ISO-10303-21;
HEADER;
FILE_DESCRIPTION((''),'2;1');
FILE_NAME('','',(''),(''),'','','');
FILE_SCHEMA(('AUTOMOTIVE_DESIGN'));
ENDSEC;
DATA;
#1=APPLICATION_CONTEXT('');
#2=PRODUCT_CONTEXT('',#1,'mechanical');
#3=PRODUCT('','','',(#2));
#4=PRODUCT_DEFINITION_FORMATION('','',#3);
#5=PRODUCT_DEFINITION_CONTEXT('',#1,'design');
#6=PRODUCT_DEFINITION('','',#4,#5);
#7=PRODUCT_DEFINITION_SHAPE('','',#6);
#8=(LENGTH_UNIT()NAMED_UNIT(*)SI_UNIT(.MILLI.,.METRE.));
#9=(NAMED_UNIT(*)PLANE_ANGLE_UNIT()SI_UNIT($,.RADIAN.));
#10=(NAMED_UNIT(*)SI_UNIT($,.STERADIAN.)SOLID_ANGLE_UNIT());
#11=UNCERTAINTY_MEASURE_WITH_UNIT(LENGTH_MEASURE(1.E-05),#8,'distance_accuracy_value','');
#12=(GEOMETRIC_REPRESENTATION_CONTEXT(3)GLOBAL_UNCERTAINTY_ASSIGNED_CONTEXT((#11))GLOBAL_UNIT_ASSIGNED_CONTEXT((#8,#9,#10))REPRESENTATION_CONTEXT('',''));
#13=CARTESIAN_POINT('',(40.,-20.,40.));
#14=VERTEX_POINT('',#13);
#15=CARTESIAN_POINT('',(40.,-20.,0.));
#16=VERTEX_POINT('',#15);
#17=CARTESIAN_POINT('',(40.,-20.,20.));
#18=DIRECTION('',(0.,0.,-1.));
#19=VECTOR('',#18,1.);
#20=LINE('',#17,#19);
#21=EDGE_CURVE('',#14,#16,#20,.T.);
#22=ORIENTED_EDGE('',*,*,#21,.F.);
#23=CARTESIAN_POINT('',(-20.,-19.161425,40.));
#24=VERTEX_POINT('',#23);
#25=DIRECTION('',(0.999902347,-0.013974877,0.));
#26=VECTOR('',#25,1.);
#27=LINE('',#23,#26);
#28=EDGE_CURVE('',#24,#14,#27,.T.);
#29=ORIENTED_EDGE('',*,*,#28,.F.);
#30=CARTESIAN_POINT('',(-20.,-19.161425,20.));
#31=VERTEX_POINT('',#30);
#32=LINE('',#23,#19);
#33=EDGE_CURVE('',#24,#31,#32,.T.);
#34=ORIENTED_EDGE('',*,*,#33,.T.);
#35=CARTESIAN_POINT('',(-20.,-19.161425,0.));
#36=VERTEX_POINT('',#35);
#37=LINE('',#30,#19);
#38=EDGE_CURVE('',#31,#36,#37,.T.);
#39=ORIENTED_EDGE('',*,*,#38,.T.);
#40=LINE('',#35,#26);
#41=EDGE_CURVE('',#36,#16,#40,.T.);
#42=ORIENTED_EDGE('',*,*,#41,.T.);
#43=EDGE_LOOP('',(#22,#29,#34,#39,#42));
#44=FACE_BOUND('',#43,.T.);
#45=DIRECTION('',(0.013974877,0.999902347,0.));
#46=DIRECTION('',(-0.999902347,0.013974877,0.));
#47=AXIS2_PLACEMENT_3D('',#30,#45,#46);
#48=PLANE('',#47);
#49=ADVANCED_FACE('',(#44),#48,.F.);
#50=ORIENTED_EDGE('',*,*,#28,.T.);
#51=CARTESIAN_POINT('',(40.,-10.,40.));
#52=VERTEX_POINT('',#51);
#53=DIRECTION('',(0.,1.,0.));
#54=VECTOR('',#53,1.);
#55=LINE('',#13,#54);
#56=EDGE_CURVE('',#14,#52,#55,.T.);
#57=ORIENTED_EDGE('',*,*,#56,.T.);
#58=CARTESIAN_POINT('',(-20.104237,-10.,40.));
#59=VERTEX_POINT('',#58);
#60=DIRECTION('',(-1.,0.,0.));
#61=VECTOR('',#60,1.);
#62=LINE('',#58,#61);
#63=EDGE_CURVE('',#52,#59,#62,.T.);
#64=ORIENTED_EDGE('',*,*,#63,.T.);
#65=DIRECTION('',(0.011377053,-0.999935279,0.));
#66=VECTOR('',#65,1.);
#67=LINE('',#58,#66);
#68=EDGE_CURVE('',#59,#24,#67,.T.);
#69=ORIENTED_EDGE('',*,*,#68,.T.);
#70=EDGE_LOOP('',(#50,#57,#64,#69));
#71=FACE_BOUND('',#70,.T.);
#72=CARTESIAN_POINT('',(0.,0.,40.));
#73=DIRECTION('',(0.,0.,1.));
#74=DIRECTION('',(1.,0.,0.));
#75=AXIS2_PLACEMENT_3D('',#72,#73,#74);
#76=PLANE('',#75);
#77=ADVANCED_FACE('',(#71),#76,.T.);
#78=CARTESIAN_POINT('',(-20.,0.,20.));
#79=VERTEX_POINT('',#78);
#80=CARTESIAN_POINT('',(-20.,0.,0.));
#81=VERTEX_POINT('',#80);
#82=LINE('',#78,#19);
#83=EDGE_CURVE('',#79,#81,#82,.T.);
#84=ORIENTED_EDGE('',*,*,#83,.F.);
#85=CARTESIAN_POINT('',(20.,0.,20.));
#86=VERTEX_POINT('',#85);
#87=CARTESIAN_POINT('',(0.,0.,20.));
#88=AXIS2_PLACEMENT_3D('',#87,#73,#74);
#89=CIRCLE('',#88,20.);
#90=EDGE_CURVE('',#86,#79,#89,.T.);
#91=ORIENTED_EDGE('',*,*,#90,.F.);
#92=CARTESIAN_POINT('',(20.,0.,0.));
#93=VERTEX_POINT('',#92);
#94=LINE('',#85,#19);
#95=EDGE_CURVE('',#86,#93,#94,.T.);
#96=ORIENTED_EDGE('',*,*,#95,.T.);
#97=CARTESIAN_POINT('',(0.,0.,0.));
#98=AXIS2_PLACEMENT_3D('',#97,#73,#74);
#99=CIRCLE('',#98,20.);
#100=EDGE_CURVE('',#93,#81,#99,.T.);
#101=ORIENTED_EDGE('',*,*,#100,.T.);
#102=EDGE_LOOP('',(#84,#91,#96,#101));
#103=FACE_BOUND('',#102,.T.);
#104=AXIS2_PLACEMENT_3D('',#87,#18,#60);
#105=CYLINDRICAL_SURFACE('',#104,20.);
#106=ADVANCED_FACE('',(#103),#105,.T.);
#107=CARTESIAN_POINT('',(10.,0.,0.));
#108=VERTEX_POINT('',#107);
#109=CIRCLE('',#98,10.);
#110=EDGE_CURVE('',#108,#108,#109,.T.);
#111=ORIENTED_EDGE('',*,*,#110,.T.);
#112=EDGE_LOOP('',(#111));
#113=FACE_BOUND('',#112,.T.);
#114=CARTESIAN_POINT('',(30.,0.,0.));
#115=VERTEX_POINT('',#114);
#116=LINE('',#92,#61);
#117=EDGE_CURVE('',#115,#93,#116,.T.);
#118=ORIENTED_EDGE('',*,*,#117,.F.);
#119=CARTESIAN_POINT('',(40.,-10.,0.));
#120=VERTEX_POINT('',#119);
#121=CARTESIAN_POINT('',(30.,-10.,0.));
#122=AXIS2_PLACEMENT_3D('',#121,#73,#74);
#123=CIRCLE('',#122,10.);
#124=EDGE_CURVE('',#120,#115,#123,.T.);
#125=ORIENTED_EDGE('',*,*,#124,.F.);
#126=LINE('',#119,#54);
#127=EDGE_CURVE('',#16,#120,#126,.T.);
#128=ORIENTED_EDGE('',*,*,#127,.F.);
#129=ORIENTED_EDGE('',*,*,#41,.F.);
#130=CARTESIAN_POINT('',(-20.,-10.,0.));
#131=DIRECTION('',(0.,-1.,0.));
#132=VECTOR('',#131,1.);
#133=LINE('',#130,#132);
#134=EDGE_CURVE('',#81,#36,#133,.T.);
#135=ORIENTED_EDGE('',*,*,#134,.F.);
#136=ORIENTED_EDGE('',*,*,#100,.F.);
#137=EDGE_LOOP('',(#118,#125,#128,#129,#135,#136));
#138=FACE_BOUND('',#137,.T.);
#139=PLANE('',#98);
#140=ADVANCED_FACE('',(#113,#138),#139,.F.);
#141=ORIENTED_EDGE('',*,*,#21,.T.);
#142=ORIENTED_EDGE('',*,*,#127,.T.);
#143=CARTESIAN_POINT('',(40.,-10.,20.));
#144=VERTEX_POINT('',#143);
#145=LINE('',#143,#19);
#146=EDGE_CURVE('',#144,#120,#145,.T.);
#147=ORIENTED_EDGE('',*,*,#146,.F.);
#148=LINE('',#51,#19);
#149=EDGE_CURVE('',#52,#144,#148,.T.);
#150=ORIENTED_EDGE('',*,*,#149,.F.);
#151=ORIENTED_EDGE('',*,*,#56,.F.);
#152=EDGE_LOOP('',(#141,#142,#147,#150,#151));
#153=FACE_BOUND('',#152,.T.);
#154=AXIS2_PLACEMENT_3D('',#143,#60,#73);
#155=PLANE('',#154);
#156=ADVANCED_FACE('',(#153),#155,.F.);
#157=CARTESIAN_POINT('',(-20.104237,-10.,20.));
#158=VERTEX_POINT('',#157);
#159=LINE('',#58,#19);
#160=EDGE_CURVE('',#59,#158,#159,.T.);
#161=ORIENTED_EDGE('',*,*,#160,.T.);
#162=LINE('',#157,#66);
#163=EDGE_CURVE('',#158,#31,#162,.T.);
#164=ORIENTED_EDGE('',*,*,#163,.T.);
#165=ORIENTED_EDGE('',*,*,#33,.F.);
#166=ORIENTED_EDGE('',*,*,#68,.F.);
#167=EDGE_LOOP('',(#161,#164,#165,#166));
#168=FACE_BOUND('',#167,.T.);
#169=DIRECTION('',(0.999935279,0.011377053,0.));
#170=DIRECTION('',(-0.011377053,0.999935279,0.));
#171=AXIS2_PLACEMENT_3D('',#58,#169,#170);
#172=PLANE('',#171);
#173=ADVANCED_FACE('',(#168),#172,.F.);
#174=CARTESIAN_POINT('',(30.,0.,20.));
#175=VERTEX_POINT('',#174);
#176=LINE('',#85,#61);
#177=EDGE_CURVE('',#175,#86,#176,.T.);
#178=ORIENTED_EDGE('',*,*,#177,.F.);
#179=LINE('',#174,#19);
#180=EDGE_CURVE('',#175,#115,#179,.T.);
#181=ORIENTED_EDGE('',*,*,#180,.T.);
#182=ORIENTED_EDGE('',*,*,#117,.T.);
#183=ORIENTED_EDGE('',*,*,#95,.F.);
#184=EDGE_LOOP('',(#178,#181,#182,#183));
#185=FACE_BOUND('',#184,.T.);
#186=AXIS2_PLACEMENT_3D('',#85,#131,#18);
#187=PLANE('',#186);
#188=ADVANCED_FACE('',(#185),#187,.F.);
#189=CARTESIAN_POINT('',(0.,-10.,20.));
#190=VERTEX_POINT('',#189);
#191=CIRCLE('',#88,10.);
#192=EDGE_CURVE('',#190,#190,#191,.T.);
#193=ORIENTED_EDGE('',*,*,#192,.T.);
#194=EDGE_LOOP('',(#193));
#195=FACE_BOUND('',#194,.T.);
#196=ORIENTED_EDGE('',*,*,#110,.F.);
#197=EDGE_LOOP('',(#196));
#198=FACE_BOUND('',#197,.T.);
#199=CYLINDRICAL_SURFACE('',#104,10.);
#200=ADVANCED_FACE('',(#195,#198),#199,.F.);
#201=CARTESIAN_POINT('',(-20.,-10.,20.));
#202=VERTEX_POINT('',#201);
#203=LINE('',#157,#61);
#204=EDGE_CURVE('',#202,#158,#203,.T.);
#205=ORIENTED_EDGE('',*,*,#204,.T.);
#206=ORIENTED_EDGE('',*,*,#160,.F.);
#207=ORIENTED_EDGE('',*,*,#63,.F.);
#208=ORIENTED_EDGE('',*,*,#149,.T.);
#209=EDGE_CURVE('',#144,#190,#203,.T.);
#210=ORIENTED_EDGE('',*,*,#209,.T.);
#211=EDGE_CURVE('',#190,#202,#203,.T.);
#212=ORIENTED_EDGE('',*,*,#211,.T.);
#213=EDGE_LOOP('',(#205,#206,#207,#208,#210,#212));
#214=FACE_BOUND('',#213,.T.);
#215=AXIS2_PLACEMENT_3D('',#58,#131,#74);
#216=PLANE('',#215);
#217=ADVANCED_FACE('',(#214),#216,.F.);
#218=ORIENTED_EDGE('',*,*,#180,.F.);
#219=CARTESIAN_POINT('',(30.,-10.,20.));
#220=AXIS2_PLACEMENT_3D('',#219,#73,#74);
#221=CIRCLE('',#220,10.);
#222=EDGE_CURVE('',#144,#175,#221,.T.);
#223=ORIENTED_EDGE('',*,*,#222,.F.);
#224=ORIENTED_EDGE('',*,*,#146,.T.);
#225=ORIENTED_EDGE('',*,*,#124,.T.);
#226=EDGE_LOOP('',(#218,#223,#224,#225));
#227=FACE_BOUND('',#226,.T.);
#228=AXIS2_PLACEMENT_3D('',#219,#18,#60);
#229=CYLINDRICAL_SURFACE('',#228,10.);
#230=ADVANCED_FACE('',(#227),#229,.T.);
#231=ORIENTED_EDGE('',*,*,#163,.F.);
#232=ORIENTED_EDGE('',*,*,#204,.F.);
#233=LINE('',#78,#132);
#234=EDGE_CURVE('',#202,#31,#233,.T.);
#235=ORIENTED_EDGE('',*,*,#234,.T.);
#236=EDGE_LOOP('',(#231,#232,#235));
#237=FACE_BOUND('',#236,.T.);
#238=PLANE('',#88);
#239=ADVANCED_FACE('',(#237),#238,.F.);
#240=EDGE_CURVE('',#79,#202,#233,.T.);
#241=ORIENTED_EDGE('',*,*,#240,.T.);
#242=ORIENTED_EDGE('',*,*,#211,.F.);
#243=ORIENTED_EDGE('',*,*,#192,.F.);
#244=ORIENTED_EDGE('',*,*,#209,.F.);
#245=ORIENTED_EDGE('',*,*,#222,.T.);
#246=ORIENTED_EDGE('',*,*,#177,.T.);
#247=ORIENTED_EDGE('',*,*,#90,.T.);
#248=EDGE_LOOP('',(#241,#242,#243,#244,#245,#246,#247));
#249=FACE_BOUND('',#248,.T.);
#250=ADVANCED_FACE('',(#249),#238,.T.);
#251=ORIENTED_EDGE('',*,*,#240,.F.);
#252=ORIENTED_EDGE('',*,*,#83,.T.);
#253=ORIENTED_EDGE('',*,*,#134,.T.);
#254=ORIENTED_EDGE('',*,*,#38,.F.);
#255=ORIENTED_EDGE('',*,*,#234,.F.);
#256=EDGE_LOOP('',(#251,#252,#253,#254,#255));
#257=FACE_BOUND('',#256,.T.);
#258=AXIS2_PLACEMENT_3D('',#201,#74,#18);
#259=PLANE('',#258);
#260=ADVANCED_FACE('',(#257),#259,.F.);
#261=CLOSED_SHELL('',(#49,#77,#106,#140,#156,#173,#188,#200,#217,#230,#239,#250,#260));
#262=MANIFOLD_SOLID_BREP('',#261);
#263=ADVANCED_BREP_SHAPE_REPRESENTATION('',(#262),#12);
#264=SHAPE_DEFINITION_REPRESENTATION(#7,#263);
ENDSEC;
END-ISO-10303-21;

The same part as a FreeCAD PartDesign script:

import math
import FreeCAD as App
import Part
import Sketcher

V = App.Vector


def add_polygon(sketch, points):
    """Adds a closed chain of lines whose ends are joined by coincident constraints."""
    first, n = sketch.GeometryCount, len(points)
    for a, b in zip(points, points[1:] + points[:1]):
        sketch.addGeometry(Part.LineSegment(App.Vector(*a, 0), App.Vector(*b, 0)), False)
    for i in range(n):
        sketch.addConstraint(Sketcher.Constraint("Coincident", first + i, 2, first + (i + 1) % n, 1))

doc = App.newDocument("Part")
body = doc.addObject("PartDesign::Body", "Body")

sketch1 = doc.addObject("Sketcher::SketchObject", "Sketch")
body.addObject(sketch1)
sketch1.AttachmentSupport = (doc.XY_Plane, [""])
sketch1.MapMode = "FlatFace"
sketch1.addGeometry(Part.LineSegment(V(-20, 0, 0), V(-20, -19, 0)), False)
sketch1.addGeometry(Part.LineSegment(V(-20, -19, 0), V(40, -20, 0)), False)
sketch1.addGeometry(Part.LineSegment(V(40, -20, 0), V(40, -10, 0)), False)
sketch1.addGeometry(Part.ArcOfCircle(Part.Circle(V(30, -10, 0), V(0, 0, 1), 10), math.radians(0), math.radians(90)), False)
sketch1.addGeometry(Part.LineSegment(V(30, 0, 0), V(20, 0, 0)), False)
sketch1.addGeometry(Part.ArcOfCircle(Part.Circle(V(0, 0, 0), V(0, 0, 1), 20), math.radians(0), math.radians(180)), False)
sketch1.addGeometry(Part.Circle(V(0, 0, 0), V(0, 0, 1), 10), False)
sketch1.addConstraint(Sketcher.Constraint("Coincident", 0, 2, 1, 1))
sketch1.addConstraint(Sketcher.Constraint("Coincident", 1, 2, 2, 1))
sketch1.addConstraint(Sketcher.Constraint("Tangent", 2, 2, 3, 1))
sketch1.addConstraint(Sketcher.Constraint("Tangent", 3, 2, 4, 1))
sketch1.addConstraint(Sketcher.Constraint("Coincident", 4, 2, 5, 1))
sketch1.addConstraint(Sketcher.Constraint("Tangent", 5, 2, 0, 1))
sketch1.addConstraint(Sketcher.Constraint("Vertical", 0))
sketch1.addConstraint(Sketcher.Constraint("Vertical", 2))
sketch1.addConstraint(Sketcher.Constraint("Horizontal", 4))
sketch1.addConstraint(Sketcher.Constraint("Coincident", 5, 3, -1, 1))
sketch1.addConstraint(Sketcher.Constraint("Coincident", 6, 3, -1, 1))
sketch1.addConstraint(Sketcher.Constraint("Equal", 3, 6))
sketch1.addConstraint(Sketcher.Constraint("PointOnObject", 3, 2, -1))
sketch1.addConstraint(Sketcher.Constraint("Equal", 4, 2))
sketch1.addConstraint(Sketcher.Constraint("Diameter", 6, 20.0))
sketch1.addConstraint(Sketcher.Constraint("Radius", 5, 20.0))
sketch1.addConstraint(Sketcher.Constraint("DistanceX", 4, 2, 4, 1, 10.0))
sketch1.addConstraint(Sketcher.Constraint("Distance", 1, 60.00586))
pad1 = doc.addObject("PartDesign::Pad", "Pad")
body.addObject(pad1)
pad1.Profile = sketch1
pad1.Length = 20

sketch2 = doc.addObject("Sketcher::SketchObject", "Sketch001")
body.addObject(sketch2)
sketch2.AttachmentSupport = (doc.XY_Plane, [""])
sketch2.MapMode = "FlatFace"
sketch2.AttachmentOffset = App.Placement(V(0, 0, 20), App.Rotation())
add_polygon(sketch2, [(40, -10), (-20, -10), (-20, -19), (40, -20)])
sketch2.addConstraint(Sketcher.Constraint("Horizontal", 0))
sketch2.addConstraint(Sketcher.Constraint("Vertical", 3))
sketch2.addConstraint(Sketcher.Constraint("DistanceY", 3, 1, 3, 2, 10.0))
sketch2.addConstraint(Sketcher.Constraint("DistanceY", 0, 2, -1, 1, 10.0))
sketch2.addConstraint(Sketcher.Constraint("DistanceX", 1, 2, -1, 1, 20.0))
sketch2.addConstraint(Sketcher.Constraint("DistanceX", -1, 1, 2, 2, 40.0))
sketch2.addConstraint(Sketcher.Constraint("Distance", 1, 9.162018))
sketch2.addConstraint(Sketcher.Constraint("DistanceX", 0, 2, 0, 1, 60.104237))
pad2 = doc.addObject("PartDesign::Pad", "Pad001")
body.addObject(pad2)
pad2.Profile = sketch2
pad2.Length = 20

doc.recompute()
